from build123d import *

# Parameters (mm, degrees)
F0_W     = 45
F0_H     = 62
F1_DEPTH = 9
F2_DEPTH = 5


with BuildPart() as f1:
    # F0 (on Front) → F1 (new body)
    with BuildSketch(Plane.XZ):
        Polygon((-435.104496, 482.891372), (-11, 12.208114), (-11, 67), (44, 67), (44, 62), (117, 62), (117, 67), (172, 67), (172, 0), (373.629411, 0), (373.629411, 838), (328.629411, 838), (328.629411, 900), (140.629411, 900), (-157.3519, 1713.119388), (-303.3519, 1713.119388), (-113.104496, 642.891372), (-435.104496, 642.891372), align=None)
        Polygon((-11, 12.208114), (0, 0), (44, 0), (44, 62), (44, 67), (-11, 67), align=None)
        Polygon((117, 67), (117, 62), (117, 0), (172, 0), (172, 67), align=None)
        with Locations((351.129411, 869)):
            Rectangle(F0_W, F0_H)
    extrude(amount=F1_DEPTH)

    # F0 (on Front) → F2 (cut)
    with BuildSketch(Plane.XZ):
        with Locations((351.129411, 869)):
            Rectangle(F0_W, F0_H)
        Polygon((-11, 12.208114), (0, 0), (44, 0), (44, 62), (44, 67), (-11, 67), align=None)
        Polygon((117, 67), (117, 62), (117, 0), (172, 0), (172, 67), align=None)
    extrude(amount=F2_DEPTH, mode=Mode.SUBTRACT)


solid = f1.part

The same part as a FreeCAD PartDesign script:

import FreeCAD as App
import Part
import Sketcher

V = App.Vector

doc = App.newDocument("Part")
body = doc.addObject("PartDesign::Body", "Body")

# Sketch on XZ plane
sketch1 = body.newObject("Sketcher::SketchObject", "Sketch")
sketch1.AttachmentSupport = (doc.getObject("XZ_Plane"), [""])
sketch1.MapMode = "FlatFace"
sketch1.addGeometry(Part.LineSegment(V(-435, 483, 0), V(-11, 12, 0)), False)
sketch1.addGeometry(Part.LineSegment(V(-11, 12, 0), V(0, 0, 0)), False)
sketch1.addGeometry(Part.LineSegment(V(0, 0, 0), V(44, 0, 0)), False)
sketch1.addGeometry(Part.LineSegment(V(44, 0, 0), V(44, 62, 0)), False)
sketch1.addGeometry(Part.LineSegment(V(44, 62, 0), V(117, 62, 0)), False)
sketch1.addGeometry(Part.LineSegment(V(117, 62, 0), V(117, 0, 0)), False)
sketch1.addGeometry(Part.LineSegment(V(117, 0, 0), V(374, 0, 0)), False)
sketch1.addGeometry(Part.LineSegment(V(374, 0, 0), V(374, 900, 0)), False)
sketch1.addGeometry(Part.LineSegment(V(374, 900, 0), V(141, 900, 0)), False)
sketch1.addGeometry(Part.LineSegment(V(141, 900, 0), V(-157, 1713, 0)), False)
sketch1.addGeometry(Part.LineSegment(V(-157, 1713, 0), V(-303, 1713, 0)), False)
sketch1.addGeometry(Part.LineSegment(V(-303, 1713, 0), V(-113, 643, 0)), False)
sketch1.addGeometry(Part.LineSegment(V(-113, 643, 0), V(-435, 643, 0)), False)
sketch1.addGeometry(Part.LineSegment(V(-435, 643, 0), V(-435, 483, 0)), False)
sketch1.addConstraint(Sketcher.Constraint("Coincident", 0, 2, 1, 1))
sketch1.addConstraint(Sketcher.Constraint("Coincident", 1, 2, 2, 1))
sketch1.addConstraint(Sketcher.Constraint("Coincident", 2, 2, 3, 1))
sketch1.addConstraint(Sketcher.Constraint("Coincident", 3, 2, 4, 1))
sketch1.addConstraint(Sketcher.Constraint("Coincident", 4, 2, 5, 1))
sketch1.addConstraint(Sketcher.Constraint("Coincident", 5, 2, 6, 1))
sketch1.addConstraint(Sketcher.Constraint("Coincident", 6, 2, 7, 1))
sketch1.addConstraint(Sketcher.Constraint("Coincident", 7, 2, 8, 1))
sketch1.addConstraint(Sketcher.Constraint("Coincident", 8, 2, 9, 1))
sketch1.addConstraint(Sketcher.Constraint("Coincident", 9, 2, 10, 1))
sketch1.addConstraint(Sketcher.Constraint("Coincident", 10, 2, 11, 1))
sketch1.addConstraint(Sketcher.Constraint("Coincident", 11, 2, 12, 1))
sketch1.addConstraint(Sketcher.Constraint("Coincident", 12, 2, 13, 1))
sketch1.addConstraint(Sketcher.Constraint("Coincident", 13, 2, 0, 1))
sketch1.addConstraint(Sketcher.Constraint("Horizontal", 2))
sketch1.addConstraint(Sketcher.Constraint("Vertical", 3))
sketch1.addConstraint(Sketcher.Constraint("Horizontal", 4))
sketch1.addConstraint(Sketcher.Constraint("Vertical", 5))
sketch1.addConstraint(Sketcher.Constraint("Horizontal", 6))
sketch1.addConstraint(Sketcher.Constraint("Vertical", 7))
sketch1.addConstraint(Sketcher.Constraint("Horizontal", 8))
sketch1.addConstraint(Sketcher.Constraint("Horizontal", 10))
sketch1.addConstraint(Sketcher.Constraint("Horizontal", 12))
sketch1.addConstraint(Sketcher.Constraint("Vertical", 13))
sketch1.addConstraint(Sketcher.Constraint("Coincident", 1, 2, -1, 1))
sketch1.addConstraint(Sketcher.Constraint("PointOnObject", 5, 2, -1))
sketch1.addConstraint(Sketcher.Constraint("Parallel", 0, 1))
sketch1.addConstraint(Sketcher.Constraint("DistanceX", 2, 1, 2, 2, 44.0))
sketch1.addConstraint(Sketcher.Constraint("DistanceX", 4, 1, 4, 2, 73.0))
sketch1.addConstraint(Sketcher.Constraint("DistanceX", 8, 2, 8, 1, 233.0))
sketch1.addConstraint(Sketcher.Constraint("DistanceX", 10, 2, 10, 1, 146.0))
sketch1.addConstraint(Sketcher.Constraint("DistanceX", 12, 2, 12, 1, 322.0))
sketch1.addConstraint(Sketcher.Constraint("DistanceY", 3, 1, 3, 2, 62.0))
sketch1.addConstraint(Sketcher.Constraint("DistanceY", 7, 1, 7, 2, 900.0))
sketch1.addConstraint(Sketcher.Constraint("DistanceY", 13, 2, 13, 1, 160.0))
sketch1.addConstraint(Sketcher.Constraint("Distance", 9, 866.0))
sketch1.addConstraint(Sketcher.Constraint("DistanceX", 0, 2, -1, 1, 11.0))
sketch1.addConstraint(Sketcher.Constraint("DistanceX", 6, 1, 6, 2, 256.629411))
sketch1.addConstraint(Sketcher.Constraint("DistanceX", 9, 2, -1, 1, 157.3519))
sketch1.addConstraint(Sketcher.Constraint("DistanceY", -1, 1, 11, 2, 642.891372))
sketch1.addConstraint(Sketcher.Constraint("DistanceY", 0, 2, 11, 2, 630.683258))
pad1 = body.newObject("PartDesign::Pad", "Pad")
pad1.Profile = sketch1
pad1.Length = 9

# Sketch on XZ plane
sketch2 = body.newObject("Sketcher::SketchObject", "Sketch001")
sketch2.AttachmentSupport = (doc.getObject("XZ_Plane"), [""])
sketch2.MapMode = "FlatFace"
sketch2.addGeometry(Part.LineSegment(V(329, 900, 0), V(329, 838, 0)), False)
sketch2.addGeometry(Part.LineSegment(V(329, 838, 0), V(374, 838, 0)), False)
sketch2.addGeometry(Part.LineSegment(V(374, 838, 0), V(374, 900, 0)), False)
sketch2.addGeometry(Part.LineSegment(V(374, 900, 0), V(329, 900, 0)), False)
sketch2.addGeometry(Part.LineSegment(V(-11, 12, 0), V(0, 0, 0)), False)
sketch2.addGeometry(Part.LineSegment(V(0, 0, 0), V(44, 0, 0)), False)
sketch2.addGeometry(Part.LineSegment(V(44, 0, 0), V(44, 67, 0)), False)
sketch2.addGeometry(Part.LineSegment(V(44, 67, 0), V(-11, 67, 0)), False)
sketch2.addGeometry(Part.LineSegment(V(-11, 67, 0), V(-11, 12, 0)), False)
sketch2.addGeometry(Part.LineSegment(V(117, 67, 0), V(117, 0, 0)), False)
sketch2.addGeometry(Part.LineSegment(V(117, 0, 0), V(172, 0, 0)), False)
sketch2.addGeometry(Part.LineSegment(V(172, 0, 0), V(172, 67, 0)), False)
sketch2.addGeometry(Part.LineSegment(V(172, 67, 0), V(117, 67, 0)), False)
sketch2.addConstraint(Sketcher.Constraint("Coincident", 0, 2, 1, 1))
sketch2.addConstraint(Sketcher.Constraint("Coincident", 1, 2, 2, 1))
sketch2.addConstraint(Sketcher.Constraint("Coincident", 2, 2, 3, 1))
sketch2.addConstraint(Sketcher.Constraint("Coincident", 3, 2, 0, 1))
sketch2.addConstraint(Sketcher.Constraint("Coincident", 4, 2, 5, 1))
sketch2.addConstraint(Sketcher.Constraint("Coincident", 5, 2, 6, 1))
sketch2.addConstraint(Sketcher.Constraint("Coincident", 6, 2, 7, 1))
sketch2.addConstraint(Sketcher.Constraint("Coincident", 7, 2, 8, 1))
sketch2.addConstraint(Sketcher.Constraint("Coincident", 8, 2, 4, 1))
sketch2.addConstraint(Sketcher.Constraint("Coincident", 9, 2, 10, 1))
sketch2.addConstraint(Sketcher.Constraint("Coincident", 10, 2, 11, 1))
sketch2.addConstraint(Sketcher.Constraint("Coincident", 11, 2, 12, 1))
sketch2.addConstraint(Sketcher.Constraint("Coincident", 12, 2, 9, 1))
sketch2.addConstraint(Sketcher.Constraint("Vertical", 0))
sketch2.addConstraint(Sketcher.Constraint("Horizontal", 1))
sketch2.addConstraint(Sketcher.Constraint("Vertical", 2))
sketch2.addConstraint(Sketcher.Constraint("Horizontal", 3))
sketch2.addConstraint(Sketcher.Constraint("Horizontal", 5))
sketch2.addConstraint(Sketcher.Constraint("Vertical", 6))
sketch2.addConstraint(Sketcher.Constraint("Horizontal", 7))
sketch2.addConstraint(Sketcher.Constraint("Vertical", 8))
sketch2.addConstraint(Sketcher.Constraint("Vertical", 9))
sketch2.addConstraint(Sketcher.Constraint("Horizontal", 10))
sketch2.addConstraint(Sketcher.Constraint("Vertical", 11))
sketch2.addConstraint(Sketcher.Constraint("Horizontal", 12))
sketch2.addConstraint(Sketcher.Constraint("Coincident", 4, 2, -1, 1))
sketch2.addConstraint(Sketcher.Constraint("PointOnObject", 9, 2, -1))
sketch2.addConstraint(Sketcher.Constraint("Horizontal", 7, 2, 11, 2))
sketch2.addConstraint(Sketcher.Constraint("Equal", 7, 10))
sketch2.addConstraint(Sketcher.Constraint("DistanceX", 1, 1, 1, 2, 45.0))
sketch2.addConstraint(Sketcher.Constraint("DistanceX", 5, 1, 5, 2, 44.0))
sketch2.addConstraint(Sketcher.Constraint("DistanceX", 7, 2, 7, 1, 55.0))
sketch2.addConstraint(Sketcher.Constraint("DistanceY", 0, 2, 0, 1, 62.0))
sketch2.addConstraint(Sketcher.Constraint("DistanceY", 6, 1, 6, 2, 67.0))
sketch2.addConstraint(Sketcher.Constraint("DistanceY", -1, 1, 0, 2, 838.0))
sketch2.addConstraint(Sketcher.Constraint("DistanceX", -1, 1, 9, 2, 117.0))
sketch2.addConstraint(Sketcher.Constraint("DistanceY", 8, 2, 8, 1, 54.791886))
sketch2.addConstraint(Sketcher.Constraint("DistanceX", -1, 1, 0, 2, 328.629411))
pocket1 = body.newObject("PartDesign::Pocket", "Pocket")
pocket1.Profile = sketch2
pocket1.Length = 5
pocket1.Reversed = True

doc.recompute()
